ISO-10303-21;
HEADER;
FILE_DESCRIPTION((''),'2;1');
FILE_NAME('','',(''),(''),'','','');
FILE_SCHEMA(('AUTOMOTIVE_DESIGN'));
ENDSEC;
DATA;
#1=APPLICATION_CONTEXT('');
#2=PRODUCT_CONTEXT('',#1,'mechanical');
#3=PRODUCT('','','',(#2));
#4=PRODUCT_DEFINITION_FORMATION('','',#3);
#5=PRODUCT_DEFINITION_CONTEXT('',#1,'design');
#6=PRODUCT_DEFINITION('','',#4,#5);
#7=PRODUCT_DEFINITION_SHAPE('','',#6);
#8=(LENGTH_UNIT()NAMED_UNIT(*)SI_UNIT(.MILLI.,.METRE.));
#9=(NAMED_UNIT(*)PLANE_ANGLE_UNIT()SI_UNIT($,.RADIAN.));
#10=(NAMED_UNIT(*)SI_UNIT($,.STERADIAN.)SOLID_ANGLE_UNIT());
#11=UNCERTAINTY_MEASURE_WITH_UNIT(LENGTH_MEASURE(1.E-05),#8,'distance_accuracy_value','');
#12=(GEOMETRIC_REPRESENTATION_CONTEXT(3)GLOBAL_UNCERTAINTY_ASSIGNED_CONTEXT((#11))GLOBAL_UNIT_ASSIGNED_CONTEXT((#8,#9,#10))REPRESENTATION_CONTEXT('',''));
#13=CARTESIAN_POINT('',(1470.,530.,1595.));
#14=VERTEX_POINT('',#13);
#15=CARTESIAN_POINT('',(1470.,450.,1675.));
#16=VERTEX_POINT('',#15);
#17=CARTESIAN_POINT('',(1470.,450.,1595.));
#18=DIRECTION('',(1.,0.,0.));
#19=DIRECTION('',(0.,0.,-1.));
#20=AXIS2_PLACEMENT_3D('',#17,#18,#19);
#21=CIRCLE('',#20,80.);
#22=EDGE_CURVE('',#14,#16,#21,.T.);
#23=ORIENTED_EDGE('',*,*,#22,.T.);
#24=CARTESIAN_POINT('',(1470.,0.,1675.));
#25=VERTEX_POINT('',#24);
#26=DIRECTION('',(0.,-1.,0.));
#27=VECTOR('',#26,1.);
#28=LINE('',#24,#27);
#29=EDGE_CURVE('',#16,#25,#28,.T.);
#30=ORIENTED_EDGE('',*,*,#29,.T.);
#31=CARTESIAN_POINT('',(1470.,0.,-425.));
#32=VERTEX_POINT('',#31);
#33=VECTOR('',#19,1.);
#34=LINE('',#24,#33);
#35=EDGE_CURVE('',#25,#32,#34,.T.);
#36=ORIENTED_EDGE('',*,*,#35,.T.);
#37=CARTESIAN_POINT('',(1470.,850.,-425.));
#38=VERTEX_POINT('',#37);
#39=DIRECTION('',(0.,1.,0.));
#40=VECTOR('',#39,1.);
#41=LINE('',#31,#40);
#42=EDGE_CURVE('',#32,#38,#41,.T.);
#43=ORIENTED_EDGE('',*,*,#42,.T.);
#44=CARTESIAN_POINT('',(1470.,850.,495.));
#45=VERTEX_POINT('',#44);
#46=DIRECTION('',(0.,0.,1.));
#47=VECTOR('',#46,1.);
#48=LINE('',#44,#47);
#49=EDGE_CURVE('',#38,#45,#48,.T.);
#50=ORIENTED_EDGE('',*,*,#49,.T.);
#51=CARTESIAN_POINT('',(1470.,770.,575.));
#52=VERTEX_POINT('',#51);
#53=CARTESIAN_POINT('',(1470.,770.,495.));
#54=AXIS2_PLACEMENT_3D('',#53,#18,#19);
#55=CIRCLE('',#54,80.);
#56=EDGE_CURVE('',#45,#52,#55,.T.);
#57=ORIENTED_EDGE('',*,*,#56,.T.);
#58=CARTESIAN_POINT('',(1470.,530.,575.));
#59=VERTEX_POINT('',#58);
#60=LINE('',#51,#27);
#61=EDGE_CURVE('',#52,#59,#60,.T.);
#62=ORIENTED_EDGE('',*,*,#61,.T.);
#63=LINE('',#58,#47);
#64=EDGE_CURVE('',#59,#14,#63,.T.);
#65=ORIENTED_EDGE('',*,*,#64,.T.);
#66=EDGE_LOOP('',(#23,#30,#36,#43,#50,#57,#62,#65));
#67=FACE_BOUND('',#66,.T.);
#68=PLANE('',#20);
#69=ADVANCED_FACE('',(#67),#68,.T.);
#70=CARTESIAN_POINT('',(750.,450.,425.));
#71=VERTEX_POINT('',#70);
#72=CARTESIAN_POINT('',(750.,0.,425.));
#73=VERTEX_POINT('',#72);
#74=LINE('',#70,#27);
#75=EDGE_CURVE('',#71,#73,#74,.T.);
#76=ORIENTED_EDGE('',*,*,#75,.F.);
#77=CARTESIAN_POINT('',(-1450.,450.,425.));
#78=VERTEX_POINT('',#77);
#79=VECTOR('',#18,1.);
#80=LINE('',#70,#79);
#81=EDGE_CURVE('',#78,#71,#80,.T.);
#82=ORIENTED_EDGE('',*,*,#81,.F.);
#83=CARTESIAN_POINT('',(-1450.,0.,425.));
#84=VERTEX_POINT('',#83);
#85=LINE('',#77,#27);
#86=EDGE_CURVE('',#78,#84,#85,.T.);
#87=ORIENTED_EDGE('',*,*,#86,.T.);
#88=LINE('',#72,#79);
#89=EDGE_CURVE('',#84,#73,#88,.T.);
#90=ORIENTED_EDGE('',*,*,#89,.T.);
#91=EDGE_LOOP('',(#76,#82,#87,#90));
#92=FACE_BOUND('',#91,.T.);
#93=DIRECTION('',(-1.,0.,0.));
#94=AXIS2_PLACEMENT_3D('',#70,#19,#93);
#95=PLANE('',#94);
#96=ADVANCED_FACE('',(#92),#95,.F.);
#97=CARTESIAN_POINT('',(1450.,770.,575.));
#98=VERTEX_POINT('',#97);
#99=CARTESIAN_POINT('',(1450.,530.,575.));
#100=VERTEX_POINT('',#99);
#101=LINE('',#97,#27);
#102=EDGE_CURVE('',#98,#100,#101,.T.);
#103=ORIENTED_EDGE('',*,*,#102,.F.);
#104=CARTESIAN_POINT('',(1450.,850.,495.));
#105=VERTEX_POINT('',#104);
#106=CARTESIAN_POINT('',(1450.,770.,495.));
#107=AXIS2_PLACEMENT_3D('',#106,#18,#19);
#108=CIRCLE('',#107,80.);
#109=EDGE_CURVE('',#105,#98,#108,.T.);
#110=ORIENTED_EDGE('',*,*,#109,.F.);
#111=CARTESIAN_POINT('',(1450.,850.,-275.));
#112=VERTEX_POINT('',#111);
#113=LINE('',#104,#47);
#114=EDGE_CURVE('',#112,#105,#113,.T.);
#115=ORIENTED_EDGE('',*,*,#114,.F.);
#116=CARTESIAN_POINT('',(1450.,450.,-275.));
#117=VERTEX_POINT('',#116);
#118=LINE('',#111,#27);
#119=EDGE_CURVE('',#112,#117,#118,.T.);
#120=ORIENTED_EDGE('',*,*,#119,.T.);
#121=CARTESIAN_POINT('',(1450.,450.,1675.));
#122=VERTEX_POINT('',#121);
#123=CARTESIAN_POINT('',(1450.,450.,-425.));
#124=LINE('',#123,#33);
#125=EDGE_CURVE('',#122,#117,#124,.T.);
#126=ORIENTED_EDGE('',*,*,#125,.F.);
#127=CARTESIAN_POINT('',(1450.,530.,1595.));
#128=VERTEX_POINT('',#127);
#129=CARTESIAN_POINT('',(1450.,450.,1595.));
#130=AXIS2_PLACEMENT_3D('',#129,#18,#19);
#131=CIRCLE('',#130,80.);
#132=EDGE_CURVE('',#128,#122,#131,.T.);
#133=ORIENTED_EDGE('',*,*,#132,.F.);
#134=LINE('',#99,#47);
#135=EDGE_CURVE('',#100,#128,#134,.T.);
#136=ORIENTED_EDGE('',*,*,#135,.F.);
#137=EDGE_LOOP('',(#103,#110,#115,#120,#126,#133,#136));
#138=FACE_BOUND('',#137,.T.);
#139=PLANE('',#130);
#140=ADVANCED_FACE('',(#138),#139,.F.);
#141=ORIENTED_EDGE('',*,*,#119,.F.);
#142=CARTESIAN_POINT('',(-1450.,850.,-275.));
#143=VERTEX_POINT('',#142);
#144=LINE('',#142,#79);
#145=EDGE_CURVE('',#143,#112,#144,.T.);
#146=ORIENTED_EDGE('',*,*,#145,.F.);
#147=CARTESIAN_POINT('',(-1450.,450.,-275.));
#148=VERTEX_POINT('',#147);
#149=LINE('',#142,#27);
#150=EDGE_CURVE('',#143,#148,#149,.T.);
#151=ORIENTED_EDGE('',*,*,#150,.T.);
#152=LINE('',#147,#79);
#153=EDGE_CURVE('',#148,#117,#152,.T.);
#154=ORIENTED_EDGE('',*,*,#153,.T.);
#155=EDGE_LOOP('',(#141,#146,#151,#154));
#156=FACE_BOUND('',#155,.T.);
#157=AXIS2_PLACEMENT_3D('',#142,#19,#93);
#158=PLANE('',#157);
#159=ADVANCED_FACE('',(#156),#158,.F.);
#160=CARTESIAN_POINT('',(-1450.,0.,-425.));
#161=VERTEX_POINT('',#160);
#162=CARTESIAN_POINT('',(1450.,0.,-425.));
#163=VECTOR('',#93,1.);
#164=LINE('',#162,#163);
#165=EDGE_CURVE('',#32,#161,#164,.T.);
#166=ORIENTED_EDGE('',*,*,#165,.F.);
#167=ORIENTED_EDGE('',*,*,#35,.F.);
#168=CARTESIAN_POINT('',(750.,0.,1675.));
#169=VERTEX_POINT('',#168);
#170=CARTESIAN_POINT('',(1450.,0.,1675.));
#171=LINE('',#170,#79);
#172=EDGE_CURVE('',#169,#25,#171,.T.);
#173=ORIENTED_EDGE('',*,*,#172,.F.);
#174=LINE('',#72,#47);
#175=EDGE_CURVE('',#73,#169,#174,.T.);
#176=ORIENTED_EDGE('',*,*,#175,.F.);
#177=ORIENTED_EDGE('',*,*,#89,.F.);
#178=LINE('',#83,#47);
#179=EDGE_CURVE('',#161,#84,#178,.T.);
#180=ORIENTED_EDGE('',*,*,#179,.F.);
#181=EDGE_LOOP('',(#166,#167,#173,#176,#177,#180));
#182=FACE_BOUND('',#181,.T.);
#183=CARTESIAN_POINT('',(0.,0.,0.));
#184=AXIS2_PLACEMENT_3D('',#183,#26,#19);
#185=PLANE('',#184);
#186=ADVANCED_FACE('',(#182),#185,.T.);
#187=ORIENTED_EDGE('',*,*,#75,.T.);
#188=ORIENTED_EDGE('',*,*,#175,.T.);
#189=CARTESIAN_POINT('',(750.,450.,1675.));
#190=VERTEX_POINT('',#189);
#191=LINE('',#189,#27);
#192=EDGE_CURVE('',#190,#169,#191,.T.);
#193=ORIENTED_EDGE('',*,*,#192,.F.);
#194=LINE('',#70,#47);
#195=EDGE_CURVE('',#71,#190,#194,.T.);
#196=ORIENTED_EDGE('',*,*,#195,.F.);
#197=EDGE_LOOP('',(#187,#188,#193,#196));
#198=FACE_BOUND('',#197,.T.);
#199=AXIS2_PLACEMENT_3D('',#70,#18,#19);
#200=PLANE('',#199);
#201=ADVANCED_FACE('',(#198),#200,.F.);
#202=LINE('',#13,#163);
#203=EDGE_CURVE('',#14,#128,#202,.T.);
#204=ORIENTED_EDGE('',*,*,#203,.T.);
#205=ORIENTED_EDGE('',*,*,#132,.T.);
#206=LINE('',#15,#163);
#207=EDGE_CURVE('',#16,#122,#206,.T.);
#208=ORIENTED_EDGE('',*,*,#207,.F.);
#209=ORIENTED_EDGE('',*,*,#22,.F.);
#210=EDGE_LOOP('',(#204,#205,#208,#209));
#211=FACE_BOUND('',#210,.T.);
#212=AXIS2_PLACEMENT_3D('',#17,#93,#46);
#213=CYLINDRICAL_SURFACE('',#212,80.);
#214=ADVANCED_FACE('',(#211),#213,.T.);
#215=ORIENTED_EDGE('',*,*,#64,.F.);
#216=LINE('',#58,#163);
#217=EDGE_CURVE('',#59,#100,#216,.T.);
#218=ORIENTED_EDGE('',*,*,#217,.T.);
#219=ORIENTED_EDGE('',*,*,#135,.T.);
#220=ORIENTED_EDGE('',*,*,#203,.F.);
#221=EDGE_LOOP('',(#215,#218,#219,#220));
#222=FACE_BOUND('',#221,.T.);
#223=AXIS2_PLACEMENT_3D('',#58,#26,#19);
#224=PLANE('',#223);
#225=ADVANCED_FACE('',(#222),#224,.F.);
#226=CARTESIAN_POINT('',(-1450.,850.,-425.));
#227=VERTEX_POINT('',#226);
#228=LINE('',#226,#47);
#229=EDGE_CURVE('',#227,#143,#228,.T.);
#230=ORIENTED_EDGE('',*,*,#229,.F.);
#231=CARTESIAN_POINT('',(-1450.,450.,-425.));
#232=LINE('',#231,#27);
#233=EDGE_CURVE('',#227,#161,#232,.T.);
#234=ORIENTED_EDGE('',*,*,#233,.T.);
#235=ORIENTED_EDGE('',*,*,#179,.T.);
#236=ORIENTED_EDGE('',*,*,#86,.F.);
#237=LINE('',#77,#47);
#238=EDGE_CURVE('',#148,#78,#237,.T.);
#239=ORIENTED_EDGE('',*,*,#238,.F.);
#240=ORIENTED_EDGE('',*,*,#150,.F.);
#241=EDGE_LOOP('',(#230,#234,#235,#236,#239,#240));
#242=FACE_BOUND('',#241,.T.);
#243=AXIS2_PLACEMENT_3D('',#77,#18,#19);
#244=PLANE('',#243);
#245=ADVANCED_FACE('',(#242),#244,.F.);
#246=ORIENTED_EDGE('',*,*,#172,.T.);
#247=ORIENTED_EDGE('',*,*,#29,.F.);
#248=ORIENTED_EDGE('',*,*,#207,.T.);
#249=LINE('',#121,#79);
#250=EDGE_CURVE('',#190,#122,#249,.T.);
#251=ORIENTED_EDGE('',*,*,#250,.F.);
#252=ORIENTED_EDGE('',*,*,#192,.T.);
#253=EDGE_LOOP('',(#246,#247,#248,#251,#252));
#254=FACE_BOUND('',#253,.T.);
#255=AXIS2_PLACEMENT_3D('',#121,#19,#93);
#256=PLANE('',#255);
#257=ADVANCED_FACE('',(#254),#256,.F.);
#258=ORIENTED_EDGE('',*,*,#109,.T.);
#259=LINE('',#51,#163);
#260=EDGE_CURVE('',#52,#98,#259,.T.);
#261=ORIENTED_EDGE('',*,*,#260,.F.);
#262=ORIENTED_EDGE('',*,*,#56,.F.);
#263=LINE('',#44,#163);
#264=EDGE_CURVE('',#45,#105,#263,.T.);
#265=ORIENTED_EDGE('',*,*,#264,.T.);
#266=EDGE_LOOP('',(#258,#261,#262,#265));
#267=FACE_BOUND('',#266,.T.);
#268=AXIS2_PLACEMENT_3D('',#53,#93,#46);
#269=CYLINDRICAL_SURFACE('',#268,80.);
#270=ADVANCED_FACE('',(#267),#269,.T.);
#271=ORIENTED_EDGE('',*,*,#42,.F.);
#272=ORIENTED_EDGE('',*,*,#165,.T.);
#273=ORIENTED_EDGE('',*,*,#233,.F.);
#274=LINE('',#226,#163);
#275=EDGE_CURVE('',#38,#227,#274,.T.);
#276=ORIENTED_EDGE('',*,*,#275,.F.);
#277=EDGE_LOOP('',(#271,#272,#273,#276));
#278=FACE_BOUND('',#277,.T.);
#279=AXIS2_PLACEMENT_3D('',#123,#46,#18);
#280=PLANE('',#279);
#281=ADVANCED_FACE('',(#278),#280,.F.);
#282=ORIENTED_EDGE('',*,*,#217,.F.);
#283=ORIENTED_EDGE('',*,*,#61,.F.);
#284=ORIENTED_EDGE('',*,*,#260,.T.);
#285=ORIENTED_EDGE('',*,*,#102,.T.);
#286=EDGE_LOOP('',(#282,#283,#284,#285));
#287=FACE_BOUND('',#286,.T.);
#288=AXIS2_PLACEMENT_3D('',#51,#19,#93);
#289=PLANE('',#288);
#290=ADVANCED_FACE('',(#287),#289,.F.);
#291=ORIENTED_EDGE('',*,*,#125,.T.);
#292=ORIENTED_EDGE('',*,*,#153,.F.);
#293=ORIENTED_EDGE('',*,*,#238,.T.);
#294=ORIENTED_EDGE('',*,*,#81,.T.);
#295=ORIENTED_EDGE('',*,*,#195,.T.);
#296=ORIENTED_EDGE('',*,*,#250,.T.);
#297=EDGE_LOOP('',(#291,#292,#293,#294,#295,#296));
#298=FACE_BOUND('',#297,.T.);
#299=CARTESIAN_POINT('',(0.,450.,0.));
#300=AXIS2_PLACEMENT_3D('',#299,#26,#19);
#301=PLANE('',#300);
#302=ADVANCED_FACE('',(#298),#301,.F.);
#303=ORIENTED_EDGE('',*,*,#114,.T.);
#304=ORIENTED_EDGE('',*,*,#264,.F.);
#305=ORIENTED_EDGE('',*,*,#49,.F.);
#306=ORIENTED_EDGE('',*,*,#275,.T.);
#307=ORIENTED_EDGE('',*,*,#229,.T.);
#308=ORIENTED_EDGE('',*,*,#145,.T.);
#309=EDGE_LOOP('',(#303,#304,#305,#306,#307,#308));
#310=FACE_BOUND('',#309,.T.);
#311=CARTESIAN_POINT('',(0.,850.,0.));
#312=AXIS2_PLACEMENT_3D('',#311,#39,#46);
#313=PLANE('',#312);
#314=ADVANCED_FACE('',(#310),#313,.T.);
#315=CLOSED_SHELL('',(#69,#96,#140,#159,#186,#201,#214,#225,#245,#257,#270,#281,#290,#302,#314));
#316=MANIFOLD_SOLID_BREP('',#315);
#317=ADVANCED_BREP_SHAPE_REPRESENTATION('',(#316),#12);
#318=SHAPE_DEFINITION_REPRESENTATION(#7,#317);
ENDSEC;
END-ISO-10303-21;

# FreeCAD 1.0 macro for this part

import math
import FreeCAD as App
import Part
import Sketcher

doc = App.newDocument("Part")
params = doc.addObject("Spreadsheet::Sheet", "Params")
for row, (alias, value) in enumerate([
    ("sketch1_width", "700 mm"),
    ("sketch1_width2", "2900 mm"),
    ("sketch1_height", "1250 mm"),
    ("sketch1_height2", "2100 mm"),
    ("pad1_length", "450 mm"),
    ("sketch2_width", "2900 mm"),
    ("sketch2_height", "150 mm"),
    ("pad2_length", "400 mm"),
    ("sketch3_radius", "80 mm"),
    ("sketch3_width", "240 mm"),
    ("sketch3_width2", "450 mm"),
    ("sketch3_height", "1020 mm"),
    ("sketch3_height2", "2100 mm"),
    ("pad3_length", "20 mm"),
], start=1):
    params.set(f"A{row}", alias)
    params.set(f"B{row}", "=" + value)
    params.setAlias(f"B{row}", alias)

body = doc.addObject("PartDesign::Body", "Body")

# Sketch on XZ plane
sketch1 = body.newObject("Sketcher::SketchObject", "Sketch")
sketch1.AttachmentSupport = (doc.getObject("XZ_Plane"), [""])
sketch1.MapMode = "FlatFace"
sketch1.addGeometry(Part.LineSegment(App.Vector(750, 425, 0), App.Vector(750, 1675, 0)), False)
sketch1.addGeometry(Part.LineSegment(App.Vector(750, 1675, 0), App.Vector(1450, 1675, 0)), False)
sketch1.addGeometry(Part.LineSegment(App.Vector(1450, 1675, 0), App.Vector(1450, -425, 0)), False)
sketch1.addGeometry(Part.LineSegment(App.Vector(1450, -425, 0), App.Vector(-1450, -425, 0)), False)
sketch1.addGeometry(Part.LineSegment(App.Vector(-1450, -425, 0), App.Vector(-1450, 425, 0)), False)
sketch1.addGeometry(Part.LineSegment(App.Vector(-1450, 425, 0), App.Vector(750, 425, 0)), False)
sketch1.addConstraint(Sketcher.Constraint("Coincident", 0, 2, 1, 1))
sketch1.addConstraint(Sketcher.Constraint("Coincident", 1, 2, 2, 1))
sketch1.addConstraint(Sketcher.Constraint("Coincident", 2, 2, 3, 1))
sketch1.addConstraint(Sketcher.Constraint("Coincident", 3, 2, 4, 1))
sketch1.addConstraint(Sketcher.Constraint("Coincident", 4, 2, 5, 1))
sketch1.addConstraint(Sketcher.Constraint("Coincident", 5, 2, 0, 1))
sketch1.addConstraint(Sketcher.Constraint("Vertical", 0))
sketch1.addConstraint(Sketcher.Constraint("Horizontal", 1))
sketch1.addConstraint(Sketcher.Constraint("Vertical", 2))
sketch1.addConstraint(Sketcher.Constraint("Horizontal", 3))
sketch1.addConstraint(Sketcher.Constraint("Vertical", 4))
sketch1.addConstraint(Sketcher.Constraint("Horizontal", 5))
sketch1.addConstraint(Sketcher.Constraint("Symmetric", 2, 2, 4, 2, -1, 1))
sketch1.addConstraint(Sketcher.Constraint("DistanceX", 1, 1, 1, 2, 700.0))
sketch1.addConstraint(Sketcher.Constraint("DistanceX", 3, 2, 3, 1, 2900.0))
sketch1.addConstraint(Sketcher.Constraint("DistanceY", 0, 1, 0, 2, 1250.0))
sketch1.addConstraint(Sketcher.Constraint("DistanceY", 2, 2, 2, 1, 2100.0))
sketch1.setExpression("Constraints[13]", "Params.sketch1_width")
sketch1.setExpression("Constraints[14]", "Params.sketch1_width2")
sketch1.setExpression("Constraints[15]", "Params.sketch1_height")
sketch1.setExpression("Constraints[16]", "Params.sketch1_height2")
pad1 = body.newObject("PartDesign::Pad", "Pad")
pad1.Profile = sketch1
pad1.setExpression("Length", "Params.pad1_length")
pad1.Reversed = True

# Sketch on XZ plane
sketch2 = body.newObject("Sketcher::SketchObject", "Sketch001")
sketch2.AttachmentSupport = (doc.getObject("XZ_Plane"), [""])
sketch2.MapMode = "FlatFace"
sketch2.AttachmentOffset = App.Placement(App.Vector(0, 0, -450), App.Rotation())
sketch2.addGeometry(Part.LineSegment(App.Vector(-1450, -425, 0), App.Vector(-1450, -275, 0)), False)
sketch2.addGeometry(Part.LineSegment(App.Vector(-1450, -275, 0), App.Vector(1450, -275, 0)), False)
sketch2.addGeometry(Part.LineSegment(App.Vector(1450, -275, 0), App.Vector(1450, -425, 0)), False)
sketch2.addGeometry(Part.LineSegment(App.Vector(1450, -425, 0), App.Vector(-1450, -425, 0)), False)
sketch2.addConstraint(Sketcher.Constraint("Coincident", 0, 2, 1, 1))
sketch2.addConstraint(Sketcher.Constraint("Coincident", 1, 2, 2, 1))
sketch2.addConstraint(Sketcher.Constraint("Coincident", 2, 2, 3, 1))
sketch2.addConstraint(Sketcher.Constraint("Coincident", 3, 2, 0, 1))
sketch2.addConstraint(Sketcher.Constraint("Vertical", 0))
sketch2.addConstraint(Sketcher.Constraint("Horizontal", 1))
sketch2.addConstraint(Sketcher.Constraint("Vertical", 2))
sketch2.addConstraint(Sketcher.Constraint("Horizontal", 3))
sketch2.addConstraint(Sketcher.Constraint("DistanceX", 1, 1, 1, 2, 2900.0))
sketch2.addConstraint(Sketcher.Constraint("DistanceY", 0, 1, 0, 2, 150.0))
sketch2.addConstraint(Sketcher.Constraint("DistanceX", 0, 2, -1, 1, 1450.0))
sketch2.addConstraint(Sketcher.Constraint("DistanceY", 0, 2, -1, 1, 275.0))
sketch2.setExpression("Constraints[8]", "Params.sketch2_width")
sketch2.setExpression("Constraints[9]", "Params.sketch2_height")
pad2 = body.newObject("PartDesign::Pad", "Pad001")
pad2.Profile = sketch2
pad2.setExpression("Length", "Params.pad2_length")
pad2.Reversed = True

# Sketch on YZ plane
sketch3 = body.newObject("Sketcher::SketchObject", "Sketch002")
sketch3.AttachmentSupport = (doc.getObject("YZ_Plane"), [""])
sketch3.MapMode = "FlatFace"
sketch3.AttachmentOffset = App.Placement(App.Vector(0, 0, 1450), App.Rotation())
sketch3.addGeometry(Part.LineSegment(App.Vector(770, 575, 0), App.Vector(530, 575, 0)), False)
sketch3.addGeometry(Part.LineSegment(App.Vector(530, 575, 0), App.Vector(530, 1595, 0)), False)
sketch3.addGeometry(Part.ArcOfCircle(Part.Circle(App.Vector(450, 1595, 0), App.Vector(0, 0, 1), 80), math.radians(0), math.radians(90)), False)
sketch3.addGeometry(Part.LineSegment(App.Vector(450, 1675, 0), App.Vector(0, 1675, 0)), False)
sketch3.addGeometry(Part.LineSegment(App.Vector(0, 1675, 0), App.Vector(0, -425, 0)), False)
sketch3.addGeometry(Part.LineSegment(App.Vector(0, -425, 0), App.Vector(850, -425, 0)), False)
sketch3.addGeometry(Part.LineSegment(App.Vector(850, -425, 0), App.Vector(850, 495, 0)), False)
sketch3.addGeometry(Part.ArcOfCircle(Part.Circle(App.Vector(770, 495, 0), App.Vector(0, 0, 1), 80), math.radians(0), math.radians(90)), False)
sketch3.addConstraint(Sketcher.Constraint("Coincident", 0, 2, 1, 1))
sketch3.addConstraint(Sketcher.Constraint("Tangent", 1, 2, 2, 1))
sketch3.addConstraint(Sketcher.Constraint("Tangent", 2, 2, 3, 1))
sketch3.addConstraint(Sketcher.Constraint("Coincident", 3, 2, 4, 1))
sketch3.addConstraint(Sketcher.Constraint("Coincident", 4, 2, 5, 1))
sketch3.addConstraint(Sketcher.Constraint("Coincident", 5, 2, 6, 1))
sketch3.addConstraint(Sketcher.Constraint("Tangent", 6, 2, 7, 1))
sketch3.addConstraint(Sketcher.Constraint("Tangent", 7, 2, 0, 1))
sketch3.addConstraint(Sketcher.Constraint("Horizontal", 0))
sketch3.addConstraint(Sketcher.Constraint("Vertical", 1))
sketch3.addConstraint(Sketcher.Constraint("Horizontal", 3))
sketch3.addConstraint(Sketcher.Constraint("Vertical", 4))
sketch3.addConstraint(Sketcher.Constraint("Horizontal", 5))
sketch3.addConstraint(Sketcher.Constraint("Vertical", 6))
sketch3.addConstraint(Sketcher.Constraint("Equal", 2, 7))
sketch3.addConstraint(Sketcher.Constraint("PointOnObject", 3, 2, -2))
sketch3.addConstraint(Sketcher.Constraint("Radius", 2, 80.0))
sketch3.addConstraint(Sketcher.Constraint("DistanceX", 0, 2, 0, 1, 240.0))
sketch3.addConstraint(Sketcher.Constraint("DistanceX", 3, 2, 3, 1, 450.0))
sketch3.addConstraint(Sketcher.Constraint("DistanceY", 1, 1, 1, 2, 1020.0))
sketch3.addConstraint(Sketcher.Constraint("DistanceY", 4, 2, 4, 1, 2100.0))
sketch3.addConstraint(Sketcher.Constraint("DistanceY", -1, 1, 2, 3, 1595.0))
sketch3.setExpression("Constraints[16]", "Params.sketch3_radius")
sketch3.setExpression("Constraints[17]", "Params.sketch3_width")
sketch3.setExpression("Constraints[18]", "Params.sketch3_width2")
sketch3.setExpression("Constraints[19]", "Params.sketch3_height")
sketch3.setExpression("Constraints[20]", "Params.sketch3_height2")
pad3 = body.newObject("PartDesign::Pad", "Pad002")
pad3.Profile = sketch3
pad3.setExpression("Length", "Params.pad3_length")

doc.recompute()
